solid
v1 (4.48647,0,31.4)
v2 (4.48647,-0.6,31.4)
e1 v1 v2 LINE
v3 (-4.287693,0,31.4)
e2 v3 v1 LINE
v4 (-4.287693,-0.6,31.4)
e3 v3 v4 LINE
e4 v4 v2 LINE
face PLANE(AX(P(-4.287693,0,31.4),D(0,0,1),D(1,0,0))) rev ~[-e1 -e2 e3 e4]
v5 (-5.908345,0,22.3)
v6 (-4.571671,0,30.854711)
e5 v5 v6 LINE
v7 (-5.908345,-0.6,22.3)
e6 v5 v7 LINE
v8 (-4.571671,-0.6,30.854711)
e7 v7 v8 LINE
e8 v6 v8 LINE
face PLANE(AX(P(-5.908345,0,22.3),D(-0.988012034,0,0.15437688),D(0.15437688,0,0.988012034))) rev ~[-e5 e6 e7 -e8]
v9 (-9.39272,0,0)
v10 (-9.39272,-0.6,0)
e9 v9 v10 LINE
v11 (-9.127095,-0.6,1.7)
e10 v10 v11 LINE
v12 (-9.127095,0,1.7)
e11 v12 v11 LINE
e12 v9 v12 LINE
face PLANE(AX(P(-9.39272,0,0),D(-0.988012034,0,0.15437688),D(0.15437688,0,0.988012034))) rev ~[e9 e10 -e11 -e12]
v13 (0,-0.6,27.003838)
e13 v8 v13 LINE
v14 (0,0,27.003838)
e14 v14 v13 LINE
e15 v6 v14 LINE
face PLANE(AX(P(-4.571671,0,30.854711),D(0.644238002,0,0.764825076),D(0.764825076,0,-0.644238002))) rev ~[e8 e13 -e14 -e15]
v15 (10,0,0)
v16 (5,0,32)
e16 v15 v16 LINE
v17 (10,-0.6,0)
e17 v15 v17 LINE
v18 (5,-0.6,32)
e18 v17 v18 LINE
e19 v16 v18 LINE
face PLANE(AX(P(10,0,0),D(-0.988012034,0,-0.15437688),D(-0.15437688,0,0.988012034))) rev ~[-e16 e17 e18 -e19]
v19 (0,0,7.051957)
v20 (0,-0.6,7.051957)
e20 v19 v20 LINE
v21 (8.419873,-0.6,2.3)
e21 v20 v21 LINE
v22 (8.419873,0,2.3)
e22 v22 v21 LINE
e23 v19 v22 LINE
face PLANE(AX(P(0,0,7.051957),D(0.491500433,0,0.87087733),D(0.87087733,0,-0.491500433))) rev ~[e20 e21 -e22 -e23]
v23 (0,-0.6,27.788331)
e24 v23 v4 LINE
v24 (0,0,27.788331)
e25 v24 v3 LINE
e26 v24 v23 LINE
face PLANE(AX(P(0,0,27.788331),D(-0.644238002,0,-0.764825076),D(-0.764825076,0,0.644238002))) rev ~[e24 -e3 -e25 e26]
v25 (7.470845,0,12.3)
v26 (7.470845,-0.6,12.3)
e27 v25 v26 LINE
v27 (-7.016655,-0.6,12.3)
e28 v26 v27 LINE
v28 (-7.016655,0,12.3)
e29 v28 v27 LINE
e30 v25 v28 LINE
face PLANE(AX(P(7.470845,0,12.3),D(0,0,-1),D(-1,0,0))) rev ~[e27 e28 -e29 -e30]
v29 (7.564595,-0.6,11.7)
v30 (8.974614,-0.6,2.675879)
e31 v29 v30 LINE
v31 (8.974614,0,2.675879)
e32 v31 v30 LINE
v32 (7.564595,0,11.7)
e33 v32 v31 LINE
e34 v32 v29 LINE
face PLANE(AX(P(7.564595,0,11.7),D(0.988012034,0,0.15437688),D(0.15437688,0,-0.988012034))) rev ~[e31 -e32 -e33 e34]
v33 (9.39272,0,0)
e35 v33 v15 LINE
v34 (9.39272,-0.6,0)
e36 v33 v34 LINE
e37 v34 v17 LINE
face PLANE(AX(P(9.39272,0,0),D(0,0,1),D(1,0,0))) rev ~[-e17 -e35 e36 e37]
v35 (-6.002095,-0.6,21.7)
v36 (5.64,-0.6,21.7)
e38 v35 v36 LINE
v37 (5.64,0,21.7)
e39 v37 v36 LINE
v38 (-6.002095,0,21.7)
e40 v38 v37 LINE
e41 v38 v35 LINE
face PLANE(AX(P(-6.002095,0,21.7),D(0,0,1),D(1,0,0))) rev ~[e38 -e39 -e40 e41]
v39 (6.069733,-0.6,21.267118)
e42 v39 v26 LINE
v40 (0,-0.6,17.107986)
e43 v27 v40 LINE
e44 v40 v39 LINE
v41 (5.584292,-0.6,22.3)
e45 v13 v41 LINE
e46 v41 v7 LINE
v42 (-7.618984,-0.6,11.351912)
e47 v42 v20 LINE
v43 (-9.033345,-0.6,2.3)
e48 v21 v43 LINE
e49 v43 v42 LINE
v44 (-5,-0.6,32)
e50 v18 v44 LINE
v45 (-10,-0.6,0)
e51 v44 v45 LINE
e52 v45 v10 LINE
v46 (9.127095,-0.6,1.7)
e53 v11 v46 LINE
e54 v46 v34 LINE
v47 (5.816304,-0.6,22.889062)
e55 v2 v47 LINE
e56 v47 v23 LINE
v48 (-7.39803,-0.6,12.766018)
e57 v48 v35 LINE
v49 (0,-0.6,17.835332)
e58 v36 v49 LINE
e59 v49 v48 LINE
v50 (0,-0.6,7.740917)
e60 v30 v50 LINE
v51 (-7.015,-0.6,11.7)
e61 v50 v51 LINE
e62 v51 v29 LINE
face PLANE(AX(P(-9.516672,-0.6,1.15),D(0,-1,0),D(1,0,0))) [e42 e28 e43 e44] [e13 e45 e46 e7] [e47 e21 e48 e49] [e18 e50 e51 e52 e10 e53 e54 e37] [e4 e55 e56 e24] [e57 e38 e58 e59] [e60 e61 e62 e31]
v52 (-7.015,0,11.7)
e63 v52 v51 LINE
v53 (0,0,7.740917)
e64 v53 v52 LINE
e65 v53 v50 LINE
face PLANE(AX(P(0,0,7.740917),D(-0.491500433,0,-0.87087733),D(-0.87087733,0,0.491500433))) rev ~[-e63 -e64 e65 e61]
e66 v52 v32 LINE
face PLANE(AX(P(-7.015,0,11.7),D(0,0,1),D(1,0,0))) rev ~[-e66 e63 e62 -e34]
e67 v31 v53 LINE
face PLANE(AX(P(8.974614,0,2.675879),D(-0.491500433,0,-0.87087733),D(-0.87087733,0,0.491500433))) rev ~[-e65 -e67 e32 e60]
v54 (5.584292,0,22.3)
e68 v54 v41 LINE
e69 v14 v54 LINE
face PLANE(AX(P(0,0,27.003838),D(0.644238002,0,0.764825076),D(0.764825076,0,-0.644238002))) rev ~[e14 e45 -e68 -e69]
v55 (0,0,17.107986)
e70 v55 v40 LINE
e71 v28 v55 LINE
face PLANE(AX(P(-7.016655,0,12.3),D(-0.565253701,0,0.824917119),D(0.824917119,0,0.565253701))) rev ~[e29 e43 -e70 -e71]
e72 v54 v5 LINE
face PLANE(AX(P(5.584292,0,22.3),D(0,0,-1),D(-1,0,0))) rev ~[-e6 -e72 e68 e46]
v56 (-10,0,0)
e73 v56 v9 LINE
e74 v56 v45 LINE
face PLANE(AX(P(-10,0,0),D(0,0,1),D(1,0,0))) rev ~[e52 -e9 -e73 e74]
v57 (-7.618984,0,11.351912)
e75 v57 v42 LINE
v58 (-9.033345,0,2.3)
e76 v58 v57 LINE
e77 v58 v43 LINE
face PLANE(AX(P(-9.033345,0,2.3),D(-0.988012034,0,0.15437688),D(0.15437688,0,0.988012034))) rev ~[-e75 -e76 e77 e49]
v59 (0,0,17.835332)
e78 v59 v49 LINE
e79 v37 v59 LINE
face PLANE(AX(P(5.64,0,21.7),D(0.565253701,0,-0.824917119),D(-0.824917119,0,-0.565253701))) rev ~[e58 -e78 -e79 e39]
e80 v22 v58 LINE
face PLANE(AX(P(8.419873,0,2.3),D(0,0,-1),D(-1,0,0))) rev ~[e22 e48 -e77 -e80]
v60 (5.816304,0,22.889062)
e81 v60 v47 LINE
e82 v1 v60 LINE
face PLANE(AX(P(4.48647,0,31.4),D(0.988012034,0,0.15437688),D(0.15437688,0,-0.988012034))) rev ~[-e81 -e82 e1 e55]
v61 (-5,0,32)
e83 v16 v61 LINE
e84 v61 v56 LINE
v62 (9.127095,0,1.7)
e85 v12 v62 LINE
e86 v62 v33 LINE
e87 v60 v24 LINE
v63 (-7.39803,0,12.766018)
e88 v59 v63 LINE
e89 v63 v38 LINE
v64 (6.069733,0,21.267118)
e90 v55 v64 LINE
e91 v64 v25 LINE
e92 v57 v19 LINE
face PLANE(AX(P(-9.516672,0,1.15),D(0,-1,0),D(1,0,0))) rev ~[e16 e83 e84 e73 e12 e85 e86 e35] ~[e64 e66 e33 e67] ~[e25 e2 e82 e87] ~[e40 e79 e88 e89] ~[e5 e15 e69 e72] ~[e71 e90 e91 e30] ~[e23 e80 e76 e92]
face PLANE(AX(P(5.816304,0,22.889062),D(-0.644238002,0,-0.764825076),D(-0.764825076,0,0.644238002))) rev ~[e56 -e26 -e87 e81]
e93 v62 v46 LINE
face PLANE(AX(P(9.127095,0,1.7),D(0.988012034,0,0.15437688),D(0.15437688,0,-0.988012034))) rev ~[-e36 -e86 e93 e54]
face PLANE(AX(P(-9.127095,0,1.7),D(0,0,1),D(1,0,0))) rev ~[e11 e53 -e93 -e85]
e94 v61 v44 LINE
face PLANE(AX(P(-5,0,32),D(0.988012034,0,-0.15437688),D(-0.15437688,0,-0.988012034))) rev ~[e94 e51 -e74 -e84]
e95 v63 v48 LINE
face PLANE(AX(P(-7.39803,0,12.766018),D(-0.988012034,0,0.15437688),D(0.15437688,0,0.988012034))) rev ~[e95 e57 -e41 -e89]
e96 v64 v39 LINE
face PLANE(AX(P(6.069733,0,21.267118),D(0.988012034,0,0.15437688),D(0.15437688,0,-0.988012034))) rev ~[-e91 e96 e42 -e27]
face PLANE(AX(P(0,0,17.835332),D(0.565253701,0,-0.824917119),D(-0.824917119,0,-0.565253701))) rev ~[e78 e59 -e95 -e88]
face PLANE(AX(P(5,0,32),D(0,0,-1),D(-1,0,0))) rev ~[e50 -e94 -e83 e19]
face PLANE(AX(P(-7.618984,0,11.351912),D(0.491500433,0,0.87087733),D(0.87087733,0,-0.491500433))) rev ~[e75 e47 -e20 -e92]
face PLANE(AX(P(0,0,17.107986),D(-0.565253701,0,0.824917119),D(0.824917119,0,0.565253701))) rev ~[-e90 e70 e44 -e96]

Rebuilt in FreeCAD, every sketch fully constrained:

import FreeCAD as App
import Part
import Sketcher
from FreeCAD import Vector

doc = App.newDocument("Part")
body = doc.addObject("PartDesign::Body", "Body")

sketch1 = doc.addObject("Sketcher::SketchObject", "Sketch")
body.addObject(sketch1)
sketch1.AttachmentSupport = (doc.XZ_Plane, [""])
sketch1.MapMode = "FlatFace"
sketch1.addGeometry(Part.LineSegment(Vector(-5, 32, 0), Vector(-10, 0, 0)), False)
sketch1.addGeometry(Part.LineSegment(Vector(-10, 0, 0), Vector(-9.39272, 0, 0)), False)
sketch1.addGeometry(Part.LineSegment(Vector(-9.39272, 0, 0), Vector(-9.127095, 1.7, 0)), False)
sketch1.addGeometry(Part.LineSegment(Vector(-9.127095, 1.7, 0), Vector(9.127095, 1.7, 0)), False)
sketch1.addGeometry(Part.LineSegment(Vector(9.127095, 1.7, 0), Vector(9.39272, 0, 0)), False)
sketch1.addGeometry(Part.LineSegment(Vector(9.39272, 0, 0), Vector(10, 0, 0)), False)
sketch1.addGeometry(Part.LineSegment(Vector(10, 0, 0), Vector(5, 32, 0)), False)
sketch1.addGeometry(Part.LineSegment(Vector(5, 32, 0), Vector(-5, 32, 0)), False)
sketch1.addGeometry(Part.LineSegment(Vector(0, 7.051957, 0), Vector(8.419873, 2.3, 0)), False)
sketch1.addGeometry(Part.LineSegment(Vector(8.419873, 2.3, 0), Vector(-9.033345, 2.3, 0)), False)
sketch1.addGeometry(Part.LineSegment(Vector(-9.033345, 2.3, 0), Vector(-7.618984, 11.351912, 0)), False)
sketch1.addGeometry(Part.LineSegment(Vector(-7.618984, 11.351912, 0), Vector(0, 7.051957, 0)), False)
sketch1.addGeometry(Part.LineSegment(Vector(0, 7.740917, 0), Vector(-7.015, 11.7, 0)), False)
sketch1.addGeometry(Part.LineSegment(Vector(-7.015, 11.7, 0), Vector(7.564595, 11.7, 0)), False)
sketch1.addGeometry(Part.LineSegment(Vector(7.564595, 11.7, 0), Vector(8.974614, 2.675879, 0)), False)
sketch1.addGeometry(Part.LineSegment(Vector(8.974614, 2.675879, 0), Vector(0, 7.740917, 0)), False)
sketch1.addGeometry(Part.LineSegment(Vector(-7.016655, 12.3, 0), Vector(0, 17.107986, 0)), False)
sketch1.addGeometry(Part.LineSegment(Vector(0, 17.107986, 0), Vector(6.069733, 21.267118, 0)), False)
sketch1.addGeometry(Part.LineSegment(Vector(6.069733, 21.267118, 0), Vector(7.470845, 12.3, 0)), False)
sketch1.addGeometry(Part.LineSegment(Vector(7.470845, 12.3, 0), Vector(-7.016655, 12.3, 0)), False)
sketch1.addGeometry(Part.LineSegment(Vector(0, 17.835332, 0), Vector(-7.39803, 12.766018, 0)), False)
sketch1.addGeometry(Part.LineSegment(Vector(-7.39803, 12.766018, 0), Vector(-6.002095, 21.7, 0)), False)
sketch1.addGeometry(Part.LineSegment(Vector(-6.002095, 21.7, 0), Vector(5.64, 21.7, 0)), False)
sketch1.addGeometry(Part.LineSegment(Vector(5.64, 21.7, 0), Vector(0, 17.835332, 0)), False)
sketch1.addGeometry(Part.LineSegment(Vector(5.584292, 22.3, 0), Vector(-5.908345, 22.3, 0)), False)
sketch1.addGeometry(Part.LineSegment(Vector(-5.908345, 22.3, 0), Vector(-4.571671, 30.854711, 0)), False)
sketch1.addGeometry(Part.LineSegment(Vector(-4.571671, 30.854711, 0), Vector(0, 27.003838, 0)), False)
sketch1.addGeometry(Part.LineSegment(Vector(0, 27.003838, 0), Vector(5.584292, 22.3, 0)), False)
sketch1.addGeometry(Part.LineSegment(Vector(0, 27.788331, 0), Vector(-4.287693, 31.4, 0)), False)
sketch1.addGeometry(Part.LineSegment(Vector(-4.287693, 31.4, 0), Vector(4.48647, 31.4, 0)), False)
sketch1.addGeometry(Part.LineSegment(Vector(4.48647, 31.4, 0), Vector(5.816304, 22.889062, 0)), False)
sketch1.addGeometry(Part.LineSegment(Vector(5.816304, 22.889062, 0), Vector(0, 27.788331, 0)), False)
sketch1.addConstraint(Sketcher.Constraint("Coincident", 0, 2, 1, 1))
sketch1.addConstraint(Sketcher.Constraint("Coincident", 1, 2, 2, 1))
sketch1.addConstraint(Sketcher.Constraint("Coincident", 2, 2, 3, 1))
sketch1.addConstraint(Sketcher.Constraint("Coincident", 3, 2, 4, 1))
sketch1.addConstraint(Sketcher.Constraint("Coincident", 4, 2, 5, 1))
sketch1.addConstraint(Sketcher.Constraint("Coincident", 5, 2, 6, 1))
sketch1.addConstraint(Sketcher.Constraint("Coincident", 6, 2, 7, 1))
sketch1.addConstraint(Sketcher.Constraint("Coincident", 7, 2, 0, 1))
sketch1.addConstraint(Sketcher.Constraint("Coincident", 8, 2, 9, 1))
sketch1.addConstraint(Sketcher.Constraint("Coincident", 9, 2, 10, 1))
sketch1.addConstraint(Sketcher.Constraint("Coincident", 10, 2, 11, 1))
sketch1.addConstraint(Sketcher.Constraint("Coincident", 11, 2, 8, 1))
sketch1.addConstraint(Sketcher.Constraint("Coincident", 12, 2, 13, 1))
sketch1.addConstraint(Sketcher.Constraint("Coincident", 13, 2, 14, 1))
sketch1.addConstraint(Sketcher.Constraint("Coincident", 14, 2, 15, 1))
sketch1.addConstraint(Sketcher.Constraint("Coincident", 15, 2, 12, 1))
sketch1.addConstraint(Sketcher.Constraint("Coincident", 16, 2, 17, 1))
sketch1.addConstraint(Sketcher.Constraint("Coincident", 17, 2, 18, 1))
sketch1.addConstraint(Sketcher.Constraint("Coincident", 18, 2, 19, 1))
sketch1.addConstraint(Sketcher.Constraint("Coincident", 19, 2, 16, 1))
sketch1.addConstraint(Sketcher.Constraint("Coincident", 20, 2, 21, 1))
sketch1.addConstraint(Sketcher.Constraint("Coincident", 21, 2, 22, 1))
sketch1.addConstraint(Sketcher.Constraint("Coincident", 22, 2, 23, 1))
sketch1.addConstraint(Sketcher.Constraint("Coincident", 23, 2, 20, 1))
sketch1.addConstraint(Sketcher.Constraint("Coincident", 24, 2, 25, 1))
sketch1.addConstraint(Sketcher.Constraint("Coincident", 25, 2, 26, 1))
sketch1.addConstraint(Sketcher.Constraint("Coincident", 26, 2, 27, 1))
sketch1.addConstraint(Sketcher.Constraint("Coincident", 27, 2, 24, 1))
sketch1.addConstraint(Sketcher.Constraint("Coincident", 28, 2, 29, 1))
sketch1.addConstraint(Sketcher.Constraint("Coincident", 29, 2, 30, 1))
sketch1.addConstraint(Sketcher.Constraint("Coincident", 30, 2, 31, 1))
sketch1.addConstraint(Sketcher.Constraint("Coincident", 31, 2, 28, 1))
sketch1.addConstraint(Sketcher.Constraint("Horizontal", 1))
sketch1.addConstraint(Sketcher.Constraint("Horizontal", 3))
sketch1.addConstraint(Sketcher.Constraint("Horizontal", 5))
sketch1.addConstraint(Sketcher.Constraint("Horizontal", 7))
sketch1.addConstraint(Sketcher.Constraint("Horizontal", 9))
sketch1.addConstraint(Sketcher.Constraint("Horizontal", 13))
sketch1.addConstraint(Sketcher.Constraint("Horizontal", 19))
sketch1.addConstraint(Sketcher.Constraint("Horizontal", 22))
sketch1.addConstraint(Sketcher.Constraint("Horizontal", 24))
sketch1.addConstraint(Sketcher.Constraint("Horizontal", 29))
sketch1.addConstraint(Sketcher.Constraint("Symmetric", 1, 2, 4, 2, -1, 1))
sketch1.addConstraint(Sketcher.Constraint("Symmetric", 0, 2, 5, 2, -2))
sketch1.addConstraint(Sketcher.Constraint("PointOnObject", 11, 2, -2))
sketch1.addConstraint(Sketcher.Constraint("PointOnObject", 15, 2, -2))
sketch1.addConstraint(Sketcher.Constraint("PointOnObject", 16, 2, -2))
sketch1.addConstraint(Sketcher.Constraint("PointOnObject", 23, 2, -2))
sketch1.addConstraint(Sketcher.Constraint("PointOnObject", 26, 2, -2))
sketch1.addConstraint(Sketcher.Constraint("PointOnObject", 31, 2, -2))
sketch1.addConstraint(Sketcher.Constraint("Parallel", 0, 2))
sketch1.addConstraint(Sketcher.Constraint("Parallel", 4, 6))
sketch1.addConstraint(Sketcher.Constraint("Parallel", 2, 10))
sketch1.addConstraint(Sketcher.Constraint("Parallel", 8, 11))
sketch1.addConstraint(Sketcher.Constraint("Parallel", 11, 12))
sketch1.addConstraint(Sketcher.Constraint("Parallel", 6, 14))
sketch1.addConstraint(Sketcher.Constraint("Parallel", 12, 15))
sketch1.addConstraint(Sketcher.Constraint("Parallel", 16, 17))
sketch1.addConstraint(Sketcher.Constraint("Parallel", 14, 18))
sketch1.addConstraint(Sketcher.Constraint("Parallel", 17, 20))
sketch1.addConstraint(Sketcher.Constraint("Parallel", 10, 21))
sketch1.addConstraint(Sketcher.Constraint("Parallel", 20, 23))
sketch1.addConstraint(Sketcher.Constraint("Parallel", 21, 25))
sketch1.addConstraint(Sketcher.Constraint("Parallel", 26, 27))
sketch1.addConstraint(Sketcher.Constraint("Parallel", 27, 28))
sketch1.addConstraint(Sketcher.Constraint("Parallel", 18, 30))
sketch1.addConstraint(Sketcher.Constraint("Parallel", 28, 31))
sketch1.addConstraint(Sketcher.Constraint("Equal", 2, 4))
sketch1.addConstraint(Sketcher.Constraint("DistanceX", 7, 2, 7, 1, 10.0))
sketch1.addConstraint(Sketcher.Constraint("DistanceX", 0, 2, -1, 1, 10.0))
sketch1.addConstraint(Sketcher.Constraint("DistanceY", -1, 1, 6, 2, 32.0))
sketch1.addConstraint(Sketcher.Constraint("DistanceY", 2, 2, 12, 2, 10.0))
sketch1.addConstraint(Sketcher.Constraint("DistanceY", 12, 2, 21, 2, 10.0))
sketch1.addConstraint(Sketcher.Constraint("DistanceY", -1, 1, 2, 2, 1.7))
sketch1.addConstraint(Sketcher.Constraint("DistanceY", -1, 1, 8, 2, 2.3))
sketch1.addConstraint(Sketcher.Constraint("DistanceY", -1, 1, 18, 2, 12.3))
sketch1.addConstraint(Sketcher.Constraint("DistanceY", -1, 1, 24, 2, 22.3))
sketch1.addConstraint(Sketcher.Constraint("DistanceY", -1, 1, 28, 2, 31.4))
sketch1.addConstraint(Sketcher.Constraint("DistanceX", -1, 1, 22, 2, 5.64))
sketch1.addConstraint(Sketcher.Constraint("DistanceX", 19, 2, 19, 1, 14.4875))
sketch1.addConstraint(Sketcher.Constraint("DistanceX", 12, 2, -1, 1, 7.015))
sketch1.addConstraint(Sketcher.Constraint("DistanceX", 1, 1, 1, 2, 0.60728))
sketch1.addConstraint(Sketcher.Constraint("DistanceX", 9, 2, 9, 1, 17.453218))
sketch1.addConstraint(Sketcher.Constraint("DistanceX", 13, 2, 3, 2, 1.5625))
sketch1.addConstraint(Sketcher.Constraint("DistanceY", 15, 2, 17, 2, 13.526201))
sketch1.addConstraint(Sketcher.Constraint("DistanceY", 15, 2, 20, 2, 5.025101))
sketch1.addConstraint(Sketcher.Constraint("Distance", 11, 8.74863))
sketch1.addConstraint(Sketcher.Constraint("Distance", 16, 8.505891))
sketch1.addConstraint(Sketcher.Constraint("Distance", 17, 7.357991))
sketch1.addConstraint(Sketcher.Constraint("Distance", 25, 8.658509))
sketch1.addConstraint(Sketcher.Constraint("Distance", 28, 5.60611))
sketch1.addConstraint(Sketcher.Constraint("Distance", 31, 7.604751))
sketch1.addConstraint(Sketcher.Constraint("DistanceX", 24, 2, 24, 1, 11.492637))
sketch1.addConstraint(Sketcher.Constraint("DistanceX", 25, 2, -1, 1, 4.571671))
pad1 = doc.addObject("PartDesign::Pad", "Pad")
body.addObject(pad1)
pad1.Profile = sketch1
pad1.Length = 0.6

doc.recompute()
